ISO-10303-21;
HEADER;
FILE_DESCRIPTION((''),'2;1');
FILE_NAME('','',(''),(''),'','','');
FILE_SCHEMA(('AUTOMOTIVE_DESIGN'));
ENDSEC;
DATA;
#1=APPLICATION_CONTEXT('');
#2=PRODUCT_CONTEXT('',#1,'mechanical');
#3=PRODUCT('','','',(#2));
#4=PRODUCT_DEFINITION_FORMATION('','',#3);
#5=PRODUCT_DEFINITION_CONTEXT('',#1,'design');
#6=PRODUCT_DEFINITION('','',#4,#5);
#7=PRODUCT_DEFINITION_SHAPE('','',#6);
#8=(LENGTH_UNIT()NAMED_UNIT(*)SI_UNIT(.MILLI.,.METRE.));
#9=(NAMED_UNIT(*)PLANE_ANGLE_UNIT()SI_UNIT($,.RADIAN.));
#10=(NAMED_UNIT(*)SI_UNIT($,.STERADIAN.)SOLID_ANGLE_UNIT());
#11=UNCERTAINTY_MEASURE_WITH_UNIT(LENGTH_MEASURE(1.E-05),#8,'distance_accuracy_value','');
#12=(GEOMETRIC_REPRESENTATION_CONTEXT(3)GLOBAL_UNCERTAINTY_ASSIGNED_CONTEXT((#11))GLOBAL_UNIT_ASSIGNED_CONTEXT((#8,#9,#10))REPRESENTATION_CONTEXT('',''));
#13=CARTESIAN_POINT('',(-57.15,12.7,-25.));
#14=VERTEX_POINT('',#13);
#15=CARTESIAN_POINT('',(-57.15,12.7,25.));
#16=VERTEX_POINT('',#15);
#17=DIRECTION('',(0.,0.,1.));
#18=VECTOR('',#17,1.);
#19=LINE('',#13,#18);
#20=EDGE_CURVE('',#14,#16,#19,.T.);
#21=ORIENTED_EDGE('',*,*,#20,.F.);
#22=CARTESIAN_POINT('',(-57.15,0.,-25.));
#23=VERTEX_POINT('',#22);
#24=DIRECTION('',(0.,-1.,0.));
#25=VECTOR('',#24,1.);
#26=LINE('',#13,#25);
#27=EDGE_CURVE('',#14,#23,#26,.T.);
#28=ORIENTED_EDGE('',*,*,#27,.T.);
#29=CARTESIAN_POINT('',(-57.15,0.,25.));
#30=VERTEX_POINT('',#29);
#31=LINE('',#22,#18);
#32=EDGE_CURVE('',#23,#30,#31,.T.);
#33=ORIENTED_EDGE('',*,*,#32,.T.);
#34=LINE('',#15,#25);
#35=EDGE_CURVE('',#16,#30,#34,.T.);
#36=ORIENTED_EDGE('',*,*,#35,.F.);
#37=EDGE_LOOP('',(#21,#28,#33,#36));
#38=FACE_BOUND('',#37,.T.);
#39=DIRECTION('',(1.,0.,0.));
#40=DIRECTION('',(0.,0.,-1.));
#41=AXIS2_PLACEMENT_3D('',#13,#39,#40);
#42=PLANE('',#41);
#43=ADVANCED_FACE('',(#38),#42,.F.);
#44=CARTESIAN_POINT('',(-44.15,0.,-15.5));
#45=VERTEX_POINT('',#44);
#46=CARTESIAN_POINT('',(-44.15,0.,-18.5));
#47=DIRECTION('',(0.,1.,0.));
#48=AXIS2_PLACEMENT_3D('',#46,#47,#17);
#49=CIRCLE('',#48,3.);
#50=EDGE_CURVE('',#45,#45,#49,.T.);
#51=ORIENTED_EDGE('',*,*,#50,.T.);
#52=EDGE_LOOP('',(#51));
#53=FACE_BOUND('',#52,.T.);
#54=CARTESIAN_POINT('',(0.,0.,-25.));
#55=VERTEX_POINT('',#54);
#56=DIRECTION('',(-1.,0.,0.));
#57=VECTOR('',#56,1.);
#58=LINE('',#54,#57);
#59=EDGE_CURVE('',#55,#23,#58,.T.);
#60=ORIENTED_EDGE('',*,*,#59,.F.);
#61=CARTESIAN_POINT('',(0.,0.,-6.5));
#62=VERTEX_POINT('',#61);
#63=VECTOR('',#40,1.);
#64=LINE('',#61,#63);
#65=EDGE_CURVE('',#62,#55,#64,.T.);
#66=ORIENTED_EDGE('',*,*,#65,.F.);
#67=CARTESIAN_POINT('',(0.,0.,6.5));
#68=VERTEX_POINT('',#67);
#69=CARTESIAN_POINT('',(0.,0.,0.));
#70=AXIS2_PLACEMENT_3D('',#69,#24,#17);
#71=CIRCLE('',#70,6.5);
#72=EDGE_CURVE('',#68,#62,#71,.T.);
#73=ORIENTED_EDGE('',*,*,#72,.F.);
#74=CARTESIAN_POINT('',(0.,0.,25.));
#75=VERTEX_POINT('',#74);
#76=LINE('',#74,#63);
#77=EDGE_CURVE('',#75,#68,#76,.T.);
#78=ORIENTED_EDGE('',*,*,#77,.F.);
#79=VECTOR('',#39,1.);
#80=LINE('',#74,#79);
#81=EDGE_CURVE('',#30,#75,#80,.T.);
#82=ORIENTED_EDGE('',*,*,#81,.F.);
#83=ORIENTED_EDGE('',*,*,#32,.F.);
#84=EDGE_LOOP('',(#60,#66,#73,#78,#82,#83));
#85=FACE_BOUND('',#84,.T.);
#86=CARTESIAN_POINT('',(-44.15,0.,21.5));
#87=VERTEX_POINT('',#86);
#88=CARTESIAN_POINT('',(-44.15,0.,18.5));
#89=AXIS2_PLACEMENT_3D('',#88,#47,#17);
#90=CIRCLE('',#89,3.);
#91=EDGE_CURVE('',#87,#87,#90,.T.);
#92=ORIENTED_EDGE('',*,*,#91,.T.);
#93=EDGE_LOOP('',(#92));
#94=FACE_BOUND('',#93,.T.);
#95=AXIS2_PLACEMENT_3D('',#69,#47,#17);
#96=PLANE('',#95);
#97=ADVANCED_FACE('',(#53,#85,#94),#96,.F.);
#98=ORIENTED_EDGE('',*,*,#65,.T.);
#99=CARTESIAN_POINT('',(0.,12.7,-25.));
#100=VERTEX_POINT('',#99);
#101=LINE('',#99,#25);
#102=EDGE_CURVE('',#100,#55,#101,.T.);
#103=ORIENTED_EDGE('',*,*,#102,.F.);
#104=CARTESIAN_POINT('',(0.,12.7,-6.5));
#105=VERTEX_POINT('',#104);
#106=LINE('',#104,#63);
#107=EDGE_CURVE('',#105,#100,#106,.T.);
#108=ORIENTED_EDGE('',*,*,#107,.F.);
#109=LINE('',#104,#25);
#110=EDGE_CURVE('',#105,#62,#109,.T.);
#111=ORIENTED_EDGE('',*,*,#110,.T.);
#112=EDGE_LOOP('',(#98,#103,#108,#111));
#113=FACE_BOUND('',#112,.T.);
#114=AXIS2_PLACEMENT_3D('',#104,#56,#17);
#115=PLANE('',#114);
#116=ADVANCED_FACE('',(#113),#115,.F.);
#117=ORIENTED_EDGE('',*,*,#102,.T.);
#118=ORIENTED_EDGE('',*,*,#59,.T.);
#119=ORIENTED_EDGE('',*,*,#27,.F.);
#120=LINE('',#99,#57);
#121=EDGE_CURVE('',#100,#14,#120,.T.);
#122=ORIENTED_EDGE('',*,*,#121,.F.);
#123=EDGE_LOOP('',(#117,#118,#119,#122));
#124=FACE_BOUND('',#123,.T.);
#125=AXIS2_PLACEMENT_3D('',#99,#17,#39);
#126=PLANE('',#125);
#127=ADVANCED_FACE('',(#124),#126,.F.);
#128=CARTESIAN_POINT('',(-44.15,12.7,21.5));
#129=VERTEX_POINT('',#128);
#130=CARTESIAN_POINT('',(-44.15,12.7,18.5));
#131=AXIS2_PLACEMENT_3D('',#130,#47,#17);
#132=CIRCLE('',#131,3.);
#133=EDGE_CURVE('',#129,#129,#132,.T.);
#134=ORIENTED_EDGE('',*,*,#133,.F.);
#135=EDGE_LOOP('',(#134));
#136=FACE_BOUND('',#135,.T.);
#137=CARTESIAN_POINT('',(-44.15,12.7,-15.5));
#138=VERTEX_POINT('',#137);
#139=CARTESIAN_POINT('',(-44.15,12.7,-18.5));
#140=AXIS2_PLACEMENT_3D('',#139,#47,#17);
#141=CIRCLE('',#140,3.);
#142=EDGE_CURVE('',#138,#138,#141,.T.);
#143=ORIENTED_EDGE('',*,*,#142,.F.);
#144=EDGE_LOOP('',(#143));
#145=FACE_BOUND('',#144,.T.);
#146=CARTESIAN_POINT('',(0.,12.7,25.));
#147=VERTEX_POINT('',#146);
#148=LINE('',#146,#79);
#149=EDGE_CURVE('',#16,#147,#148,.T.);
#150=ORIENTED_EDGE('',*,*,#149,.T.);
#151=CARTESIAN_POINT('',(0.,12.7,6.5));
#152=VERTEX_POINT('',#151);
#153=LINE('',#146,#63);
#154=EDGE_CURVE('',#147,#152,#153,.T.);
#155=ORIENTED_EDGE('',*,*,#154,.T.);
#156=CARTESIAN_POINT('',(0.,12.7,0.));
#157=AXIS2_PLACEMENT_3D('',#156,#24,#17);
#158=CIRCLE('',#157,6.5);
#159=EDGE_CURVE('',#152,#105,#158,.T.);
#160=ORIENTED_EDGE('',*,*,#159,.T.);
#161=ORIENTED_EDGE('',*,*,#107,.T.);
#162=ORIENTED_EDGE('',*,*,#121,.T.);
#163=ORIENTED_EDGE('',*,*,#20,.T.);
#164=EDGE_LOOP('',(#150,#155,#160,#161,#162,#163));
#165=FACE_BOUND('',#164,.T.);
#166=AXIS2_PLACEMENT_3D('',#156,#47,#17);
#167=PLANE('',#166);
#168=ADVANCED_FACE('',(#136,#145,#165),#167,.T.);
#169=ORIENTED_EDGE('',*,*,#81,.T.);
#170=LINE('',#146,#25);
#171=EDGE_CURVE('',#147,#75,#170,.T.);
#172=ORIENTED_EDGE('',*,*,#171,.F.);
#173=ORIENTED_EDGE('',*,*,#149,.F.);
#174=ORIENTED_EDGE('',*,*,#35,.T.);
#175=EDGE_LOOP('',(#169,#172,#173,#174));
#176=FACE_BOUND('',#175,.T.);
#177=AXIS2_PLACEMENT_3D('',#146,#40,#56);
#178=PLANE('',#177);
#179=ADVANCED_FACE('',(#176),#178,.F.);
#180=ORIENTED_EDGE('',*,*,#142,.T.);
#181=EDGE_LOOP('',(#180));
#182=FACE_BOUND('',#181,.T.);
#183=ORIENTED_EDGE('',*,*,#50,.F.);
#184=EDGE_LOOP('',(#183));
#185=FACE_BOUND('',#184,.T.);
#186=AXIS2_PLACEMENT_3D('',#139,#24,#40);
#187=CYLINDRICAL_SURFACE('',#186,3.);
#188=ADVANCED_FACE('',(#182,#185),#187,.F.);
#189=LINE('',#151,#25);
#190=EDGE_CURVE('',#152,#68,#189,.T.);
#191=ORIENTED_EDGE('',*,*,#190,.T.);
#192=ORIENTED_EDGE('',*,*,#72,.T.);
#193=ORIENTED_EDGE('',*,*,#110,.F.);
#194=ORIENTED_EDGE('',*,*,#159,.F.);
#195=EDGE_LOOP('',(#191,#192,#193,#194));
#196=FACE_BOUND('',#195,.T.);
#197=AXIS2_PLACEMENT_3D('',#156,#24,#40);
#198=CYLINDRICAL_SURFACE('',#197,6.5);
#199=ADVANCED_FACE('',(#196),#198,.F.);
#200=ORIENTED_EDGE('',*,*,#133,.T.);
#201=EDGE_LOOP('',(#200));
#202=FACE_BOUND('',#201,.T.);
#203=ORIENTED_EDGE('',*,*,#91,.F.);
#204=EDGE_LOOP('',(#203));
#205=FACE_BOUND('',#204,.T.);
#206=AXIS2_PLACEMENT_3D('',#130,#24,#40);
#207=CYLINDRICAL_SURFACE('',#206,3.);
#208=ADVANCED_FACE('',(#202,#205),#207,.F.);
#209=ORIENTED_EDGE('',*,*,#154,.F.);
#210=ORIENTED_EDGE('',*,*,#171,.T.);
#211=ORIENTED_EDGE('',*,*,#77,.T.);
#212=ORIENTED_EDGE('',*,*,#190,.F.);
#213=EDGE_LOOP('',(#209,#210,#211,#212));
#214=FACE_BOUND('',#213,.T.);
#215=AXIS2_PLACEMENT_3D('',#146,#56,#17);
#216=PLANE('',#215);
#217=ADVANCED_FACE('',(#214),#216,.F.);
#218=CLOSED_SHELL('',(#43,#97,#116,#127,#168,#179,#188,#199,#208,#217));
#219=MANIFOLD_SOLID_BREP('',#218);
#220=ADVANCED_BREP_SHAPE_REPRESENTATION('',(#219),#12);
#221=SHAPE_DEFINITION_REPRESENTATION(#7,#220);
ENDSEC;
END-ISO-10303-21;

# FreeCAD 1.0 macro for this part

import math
import FreeCAD as App
import Part
import Sketcher

V = App.Vector

doc = App.newDocument("Part")
body = doc.addObject("PartDesign::Body", "Body")

# Sketch on XZ plane
sketch1 = doc.addObject("Sketcher::SketchObject", "Sketch")
body.addObject(sketch1)
sketch1.AttachmentSupport = (doc.XZ_Plane, [""])
sketch1.MapMode = "FlatFace"
sketch1.addGeometry([
    Part.LineSegment(V(0, -25, 0), V(-57.15, -25, 0)),  # 0
    Part.LineSegment(V(-57.15, -25, 0), V(-57.15, 25, 0)),  # 1
    Part.LineSegment(V(-57.15, 25, 0), V(0, 25, 0)),  # 2
    Part.LineSegment(V(0, 25, 0), V(0, 6.5, 0)),  # 3
    Part.ArcOfCircle(Part.Circle(V(0, 0, 0), V(0, 0, 1), 6.5), math.radians(90), math.radians(270)),  # 4
    Part.LineSegment(V(0, -6.5, 0), V(0, -25, 0)),  # 5
    Part.Circle(V(-44.15, 18.5, 0), V(0, 0, 1), 3),  # 6
    Part.Circle(V(-44.15, -18.5, 0), V(0, 0, 1), 3),  # 7
], False)
sketch1.addConstraint([
    Sketcher.Constraint("Coincident", 0, 2, 1, 1),
    Sketcher.Constraint("Coincident", 1, 2, 2, 1),
    Sketcher.Constraint("Coincident", 2, 2, 3, 1),
    Sketcher.Constraint("Coincident", 3, 2, 4, 1),
    Sketcher.Constraint("Coincident", 4, 2, 5, 1),
    Sketcher.Constraint("Coincident", 5, 2, 0, 1),
    Sketcher.Constraint("Horizontal", 0),
    Sketcher.Constraint("Vertical", 1),
    Sketcher.Constraint("Horizontal", 2),
    Sketcher.Constraint("Vertical", 3),
    Sketcher.Constraint("Vertical", 5),
    Sketcher.Constraint("Coincident", 4, 3, -1, 1),
    Sketcher.Constraint("Equal", 6, 7),
    Sketcher.Constraint("Symmetric", 2, 2, 5, 2, -1, 1),
    Sketcher.Constraint("Symmetric", 6, 3, 7, 3, -1),
    Sketcher.Constraint("PointOnObject", 2, 2, -2),
    Sketcher.Constraint("Diameter", 6, 6.0),
    Sketcher.Constraint("Radius", 4, 6.5),
    Sketcher.Constraint("DistanceY", 1, 1, 1, 2, 50.0),
    Sketcher.Constraint("DistanceY", 7, 3, 6, 3, 37.0),
    Sketcher.Constraint("DistanceX", 0, 2, 7, 3, 13.0),
    Sketcher.Constraint("DistanceX", 0, 2, 0, 1, 57.15),
])
pad1 = doc.addObject("PartDesign::Pad", "Pad")
body.addObject(pad1)
pad1.Profile = sketch1
pad1.Length = 12.7
pad1.Reversed = True

doc.recompute()
